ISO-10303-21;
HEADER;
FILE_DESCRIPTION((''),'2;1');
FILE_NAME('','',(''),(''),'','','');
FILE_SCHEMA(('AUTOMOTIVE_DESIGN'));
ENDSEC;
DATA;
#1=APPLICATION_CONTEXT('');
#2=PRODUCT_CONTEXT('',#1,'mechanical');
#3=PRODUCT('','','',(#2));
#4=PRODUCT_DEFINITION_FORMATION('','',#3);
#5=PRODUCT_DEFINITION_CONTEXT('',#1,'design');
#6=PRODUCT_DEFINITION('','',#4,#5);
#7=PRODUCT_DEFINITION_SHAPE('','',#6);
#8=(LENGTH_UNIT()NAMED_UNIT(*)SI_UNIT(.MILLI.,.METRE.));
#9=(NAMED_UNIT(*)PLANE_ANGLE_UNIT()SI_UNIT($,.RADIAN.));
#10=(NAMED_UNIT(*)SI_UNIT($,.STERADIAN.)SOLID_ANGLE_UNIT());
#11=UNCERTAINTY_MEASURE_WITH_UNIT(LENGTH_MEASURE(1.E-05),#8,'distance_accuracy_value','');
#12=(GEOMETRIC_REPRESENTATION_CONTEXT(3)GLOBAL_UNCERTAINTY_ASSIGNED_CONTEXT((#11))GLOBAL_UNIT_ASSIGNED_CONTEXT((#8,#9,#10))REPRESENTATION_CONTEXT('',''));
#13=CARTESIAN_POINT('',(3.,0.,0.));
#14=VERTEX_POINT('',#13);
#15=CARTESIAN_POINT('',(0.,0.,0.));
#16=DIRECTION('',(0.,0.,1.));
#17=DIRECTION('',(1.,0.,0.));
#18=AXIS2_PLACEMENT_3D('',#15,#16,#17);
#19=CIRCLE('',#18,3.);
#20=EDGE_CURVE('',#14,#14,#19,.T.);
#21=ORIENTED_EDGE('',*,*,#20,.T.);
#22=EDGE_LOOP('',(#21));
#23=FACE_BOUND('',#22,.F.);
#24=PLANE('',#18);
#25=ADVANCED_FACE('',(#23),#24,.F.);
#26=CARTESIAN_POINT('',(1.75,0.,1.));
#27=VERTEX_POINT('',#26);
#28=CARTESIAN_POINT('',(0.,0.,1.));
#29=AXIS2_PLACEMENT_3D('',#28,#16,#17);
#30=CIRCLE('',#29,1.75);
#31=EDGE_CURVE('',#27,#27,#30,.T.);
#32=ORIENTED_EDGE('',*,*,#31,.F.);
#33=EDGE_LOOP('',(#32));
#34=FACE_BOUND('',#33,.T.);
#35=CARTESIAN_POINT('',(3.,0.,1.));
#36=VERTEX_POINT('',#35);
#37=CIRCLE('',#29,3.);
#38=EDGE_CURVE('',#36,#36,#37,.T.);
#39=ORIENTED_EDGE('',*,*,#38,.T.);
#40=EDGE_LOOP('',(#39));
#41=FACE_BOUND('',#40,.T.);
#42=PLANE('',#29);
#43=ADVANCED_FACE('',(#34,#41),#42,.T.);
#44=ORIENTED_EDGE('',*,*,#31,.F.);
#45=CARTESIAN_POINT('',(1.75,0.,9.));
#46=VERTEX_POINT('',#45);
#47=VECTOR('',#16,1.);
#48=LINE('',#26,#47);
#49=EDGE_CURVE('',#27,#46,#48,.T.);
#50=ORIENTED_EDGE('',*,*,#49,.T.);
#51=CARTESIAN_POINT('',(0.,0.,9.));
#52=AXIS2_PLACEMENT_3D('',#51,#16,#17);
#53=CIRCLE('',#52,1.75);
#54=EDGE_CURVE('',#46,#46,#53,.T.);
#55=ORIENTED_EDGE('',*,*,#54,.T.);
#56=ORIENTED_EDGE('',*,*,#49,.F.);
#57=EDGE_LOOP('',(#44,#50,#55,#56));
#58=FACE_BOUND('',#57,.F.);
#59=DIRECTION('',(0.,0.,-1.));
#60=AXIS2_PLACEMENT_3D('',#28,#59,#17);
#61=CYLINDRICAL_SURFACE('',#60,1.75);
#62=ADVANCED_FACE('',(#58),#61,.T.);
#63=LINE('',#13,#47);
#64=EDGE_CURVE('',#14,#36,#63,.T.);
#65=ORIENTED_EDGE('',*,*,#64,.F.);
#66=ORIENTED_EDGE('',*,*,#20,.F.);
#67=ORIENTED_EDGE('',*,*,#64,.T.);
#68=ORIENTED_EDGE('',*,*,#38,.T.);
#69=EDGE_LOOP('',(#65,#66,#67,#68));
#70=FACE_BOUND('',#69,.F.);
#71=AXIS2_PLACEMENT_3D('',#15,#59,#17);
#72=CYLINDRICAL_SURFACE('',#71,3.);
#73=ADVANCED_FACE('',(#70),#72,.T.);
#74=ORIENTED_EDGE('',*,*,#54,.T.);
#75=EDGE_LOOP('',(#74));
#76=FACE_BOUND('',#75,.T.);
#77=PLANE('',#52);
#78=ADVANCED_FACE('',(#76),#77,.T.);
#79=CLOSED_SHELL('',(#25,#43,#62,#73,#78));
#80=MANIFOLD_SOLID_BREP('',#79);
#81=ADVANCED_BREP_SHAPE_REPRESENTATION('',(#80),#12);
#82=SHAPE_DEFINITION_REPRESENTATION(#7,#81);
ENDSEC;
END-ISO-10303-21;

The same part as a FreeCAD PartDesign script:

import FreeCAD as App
import Part
import Sketcher

V = App.Vector

doc = App.newDocument("Part")
body = doc.addObject("PartDesign::Body", "Body")

sketch1 = body.newObject("Sketcher::SketchObject", "Sketch")
sketch1.AttachmentSupport = (doc.getObject("XY_Plane"), [""])
sketch1.MapMode = "FlatFace"
sketch1.addGeometry(Part.Circle(V(0, 0, 0), V(0, 0, 1), 3), False)
sketch1.addConstraint([
    Sketcher.Constraint("Coincident", 0, 3, -1, 1),
    Sketcher.Constraint("Diameter", 0, 6.0),
])
pad1 = body.newObject("PartDesign::Pad", "Pad")
pad1.Profile = sketch1
pad1.Length = 1

sketch2 = body.newObject("Sketcher::SketchObject", "Sketch001")
sketch2.AttachmentSupport = (doc.getObject("XY_Plane"), [""])
sketch2.MapMode = "FlatFace"
sketch2.AttachmentOffset = App.Placement(V(0, 0, 1), App.Rotation())
sketch2.addGeometry(Part.Circle(V(0, 0, 0), V(0, 0, 1), 1.75), False)
sketch2.addConstraint([
    Sketcher.Constraint("Coincident", 0, 3, -1, 1),
    Sketcher.Constraint("Diameter", 0, 3.5),
])
pad2 = body.newObject("PartDesign::Pad", "Pad001")
pad2.Profile = sketch2
pad2.Length = 8

doc.recompute()
